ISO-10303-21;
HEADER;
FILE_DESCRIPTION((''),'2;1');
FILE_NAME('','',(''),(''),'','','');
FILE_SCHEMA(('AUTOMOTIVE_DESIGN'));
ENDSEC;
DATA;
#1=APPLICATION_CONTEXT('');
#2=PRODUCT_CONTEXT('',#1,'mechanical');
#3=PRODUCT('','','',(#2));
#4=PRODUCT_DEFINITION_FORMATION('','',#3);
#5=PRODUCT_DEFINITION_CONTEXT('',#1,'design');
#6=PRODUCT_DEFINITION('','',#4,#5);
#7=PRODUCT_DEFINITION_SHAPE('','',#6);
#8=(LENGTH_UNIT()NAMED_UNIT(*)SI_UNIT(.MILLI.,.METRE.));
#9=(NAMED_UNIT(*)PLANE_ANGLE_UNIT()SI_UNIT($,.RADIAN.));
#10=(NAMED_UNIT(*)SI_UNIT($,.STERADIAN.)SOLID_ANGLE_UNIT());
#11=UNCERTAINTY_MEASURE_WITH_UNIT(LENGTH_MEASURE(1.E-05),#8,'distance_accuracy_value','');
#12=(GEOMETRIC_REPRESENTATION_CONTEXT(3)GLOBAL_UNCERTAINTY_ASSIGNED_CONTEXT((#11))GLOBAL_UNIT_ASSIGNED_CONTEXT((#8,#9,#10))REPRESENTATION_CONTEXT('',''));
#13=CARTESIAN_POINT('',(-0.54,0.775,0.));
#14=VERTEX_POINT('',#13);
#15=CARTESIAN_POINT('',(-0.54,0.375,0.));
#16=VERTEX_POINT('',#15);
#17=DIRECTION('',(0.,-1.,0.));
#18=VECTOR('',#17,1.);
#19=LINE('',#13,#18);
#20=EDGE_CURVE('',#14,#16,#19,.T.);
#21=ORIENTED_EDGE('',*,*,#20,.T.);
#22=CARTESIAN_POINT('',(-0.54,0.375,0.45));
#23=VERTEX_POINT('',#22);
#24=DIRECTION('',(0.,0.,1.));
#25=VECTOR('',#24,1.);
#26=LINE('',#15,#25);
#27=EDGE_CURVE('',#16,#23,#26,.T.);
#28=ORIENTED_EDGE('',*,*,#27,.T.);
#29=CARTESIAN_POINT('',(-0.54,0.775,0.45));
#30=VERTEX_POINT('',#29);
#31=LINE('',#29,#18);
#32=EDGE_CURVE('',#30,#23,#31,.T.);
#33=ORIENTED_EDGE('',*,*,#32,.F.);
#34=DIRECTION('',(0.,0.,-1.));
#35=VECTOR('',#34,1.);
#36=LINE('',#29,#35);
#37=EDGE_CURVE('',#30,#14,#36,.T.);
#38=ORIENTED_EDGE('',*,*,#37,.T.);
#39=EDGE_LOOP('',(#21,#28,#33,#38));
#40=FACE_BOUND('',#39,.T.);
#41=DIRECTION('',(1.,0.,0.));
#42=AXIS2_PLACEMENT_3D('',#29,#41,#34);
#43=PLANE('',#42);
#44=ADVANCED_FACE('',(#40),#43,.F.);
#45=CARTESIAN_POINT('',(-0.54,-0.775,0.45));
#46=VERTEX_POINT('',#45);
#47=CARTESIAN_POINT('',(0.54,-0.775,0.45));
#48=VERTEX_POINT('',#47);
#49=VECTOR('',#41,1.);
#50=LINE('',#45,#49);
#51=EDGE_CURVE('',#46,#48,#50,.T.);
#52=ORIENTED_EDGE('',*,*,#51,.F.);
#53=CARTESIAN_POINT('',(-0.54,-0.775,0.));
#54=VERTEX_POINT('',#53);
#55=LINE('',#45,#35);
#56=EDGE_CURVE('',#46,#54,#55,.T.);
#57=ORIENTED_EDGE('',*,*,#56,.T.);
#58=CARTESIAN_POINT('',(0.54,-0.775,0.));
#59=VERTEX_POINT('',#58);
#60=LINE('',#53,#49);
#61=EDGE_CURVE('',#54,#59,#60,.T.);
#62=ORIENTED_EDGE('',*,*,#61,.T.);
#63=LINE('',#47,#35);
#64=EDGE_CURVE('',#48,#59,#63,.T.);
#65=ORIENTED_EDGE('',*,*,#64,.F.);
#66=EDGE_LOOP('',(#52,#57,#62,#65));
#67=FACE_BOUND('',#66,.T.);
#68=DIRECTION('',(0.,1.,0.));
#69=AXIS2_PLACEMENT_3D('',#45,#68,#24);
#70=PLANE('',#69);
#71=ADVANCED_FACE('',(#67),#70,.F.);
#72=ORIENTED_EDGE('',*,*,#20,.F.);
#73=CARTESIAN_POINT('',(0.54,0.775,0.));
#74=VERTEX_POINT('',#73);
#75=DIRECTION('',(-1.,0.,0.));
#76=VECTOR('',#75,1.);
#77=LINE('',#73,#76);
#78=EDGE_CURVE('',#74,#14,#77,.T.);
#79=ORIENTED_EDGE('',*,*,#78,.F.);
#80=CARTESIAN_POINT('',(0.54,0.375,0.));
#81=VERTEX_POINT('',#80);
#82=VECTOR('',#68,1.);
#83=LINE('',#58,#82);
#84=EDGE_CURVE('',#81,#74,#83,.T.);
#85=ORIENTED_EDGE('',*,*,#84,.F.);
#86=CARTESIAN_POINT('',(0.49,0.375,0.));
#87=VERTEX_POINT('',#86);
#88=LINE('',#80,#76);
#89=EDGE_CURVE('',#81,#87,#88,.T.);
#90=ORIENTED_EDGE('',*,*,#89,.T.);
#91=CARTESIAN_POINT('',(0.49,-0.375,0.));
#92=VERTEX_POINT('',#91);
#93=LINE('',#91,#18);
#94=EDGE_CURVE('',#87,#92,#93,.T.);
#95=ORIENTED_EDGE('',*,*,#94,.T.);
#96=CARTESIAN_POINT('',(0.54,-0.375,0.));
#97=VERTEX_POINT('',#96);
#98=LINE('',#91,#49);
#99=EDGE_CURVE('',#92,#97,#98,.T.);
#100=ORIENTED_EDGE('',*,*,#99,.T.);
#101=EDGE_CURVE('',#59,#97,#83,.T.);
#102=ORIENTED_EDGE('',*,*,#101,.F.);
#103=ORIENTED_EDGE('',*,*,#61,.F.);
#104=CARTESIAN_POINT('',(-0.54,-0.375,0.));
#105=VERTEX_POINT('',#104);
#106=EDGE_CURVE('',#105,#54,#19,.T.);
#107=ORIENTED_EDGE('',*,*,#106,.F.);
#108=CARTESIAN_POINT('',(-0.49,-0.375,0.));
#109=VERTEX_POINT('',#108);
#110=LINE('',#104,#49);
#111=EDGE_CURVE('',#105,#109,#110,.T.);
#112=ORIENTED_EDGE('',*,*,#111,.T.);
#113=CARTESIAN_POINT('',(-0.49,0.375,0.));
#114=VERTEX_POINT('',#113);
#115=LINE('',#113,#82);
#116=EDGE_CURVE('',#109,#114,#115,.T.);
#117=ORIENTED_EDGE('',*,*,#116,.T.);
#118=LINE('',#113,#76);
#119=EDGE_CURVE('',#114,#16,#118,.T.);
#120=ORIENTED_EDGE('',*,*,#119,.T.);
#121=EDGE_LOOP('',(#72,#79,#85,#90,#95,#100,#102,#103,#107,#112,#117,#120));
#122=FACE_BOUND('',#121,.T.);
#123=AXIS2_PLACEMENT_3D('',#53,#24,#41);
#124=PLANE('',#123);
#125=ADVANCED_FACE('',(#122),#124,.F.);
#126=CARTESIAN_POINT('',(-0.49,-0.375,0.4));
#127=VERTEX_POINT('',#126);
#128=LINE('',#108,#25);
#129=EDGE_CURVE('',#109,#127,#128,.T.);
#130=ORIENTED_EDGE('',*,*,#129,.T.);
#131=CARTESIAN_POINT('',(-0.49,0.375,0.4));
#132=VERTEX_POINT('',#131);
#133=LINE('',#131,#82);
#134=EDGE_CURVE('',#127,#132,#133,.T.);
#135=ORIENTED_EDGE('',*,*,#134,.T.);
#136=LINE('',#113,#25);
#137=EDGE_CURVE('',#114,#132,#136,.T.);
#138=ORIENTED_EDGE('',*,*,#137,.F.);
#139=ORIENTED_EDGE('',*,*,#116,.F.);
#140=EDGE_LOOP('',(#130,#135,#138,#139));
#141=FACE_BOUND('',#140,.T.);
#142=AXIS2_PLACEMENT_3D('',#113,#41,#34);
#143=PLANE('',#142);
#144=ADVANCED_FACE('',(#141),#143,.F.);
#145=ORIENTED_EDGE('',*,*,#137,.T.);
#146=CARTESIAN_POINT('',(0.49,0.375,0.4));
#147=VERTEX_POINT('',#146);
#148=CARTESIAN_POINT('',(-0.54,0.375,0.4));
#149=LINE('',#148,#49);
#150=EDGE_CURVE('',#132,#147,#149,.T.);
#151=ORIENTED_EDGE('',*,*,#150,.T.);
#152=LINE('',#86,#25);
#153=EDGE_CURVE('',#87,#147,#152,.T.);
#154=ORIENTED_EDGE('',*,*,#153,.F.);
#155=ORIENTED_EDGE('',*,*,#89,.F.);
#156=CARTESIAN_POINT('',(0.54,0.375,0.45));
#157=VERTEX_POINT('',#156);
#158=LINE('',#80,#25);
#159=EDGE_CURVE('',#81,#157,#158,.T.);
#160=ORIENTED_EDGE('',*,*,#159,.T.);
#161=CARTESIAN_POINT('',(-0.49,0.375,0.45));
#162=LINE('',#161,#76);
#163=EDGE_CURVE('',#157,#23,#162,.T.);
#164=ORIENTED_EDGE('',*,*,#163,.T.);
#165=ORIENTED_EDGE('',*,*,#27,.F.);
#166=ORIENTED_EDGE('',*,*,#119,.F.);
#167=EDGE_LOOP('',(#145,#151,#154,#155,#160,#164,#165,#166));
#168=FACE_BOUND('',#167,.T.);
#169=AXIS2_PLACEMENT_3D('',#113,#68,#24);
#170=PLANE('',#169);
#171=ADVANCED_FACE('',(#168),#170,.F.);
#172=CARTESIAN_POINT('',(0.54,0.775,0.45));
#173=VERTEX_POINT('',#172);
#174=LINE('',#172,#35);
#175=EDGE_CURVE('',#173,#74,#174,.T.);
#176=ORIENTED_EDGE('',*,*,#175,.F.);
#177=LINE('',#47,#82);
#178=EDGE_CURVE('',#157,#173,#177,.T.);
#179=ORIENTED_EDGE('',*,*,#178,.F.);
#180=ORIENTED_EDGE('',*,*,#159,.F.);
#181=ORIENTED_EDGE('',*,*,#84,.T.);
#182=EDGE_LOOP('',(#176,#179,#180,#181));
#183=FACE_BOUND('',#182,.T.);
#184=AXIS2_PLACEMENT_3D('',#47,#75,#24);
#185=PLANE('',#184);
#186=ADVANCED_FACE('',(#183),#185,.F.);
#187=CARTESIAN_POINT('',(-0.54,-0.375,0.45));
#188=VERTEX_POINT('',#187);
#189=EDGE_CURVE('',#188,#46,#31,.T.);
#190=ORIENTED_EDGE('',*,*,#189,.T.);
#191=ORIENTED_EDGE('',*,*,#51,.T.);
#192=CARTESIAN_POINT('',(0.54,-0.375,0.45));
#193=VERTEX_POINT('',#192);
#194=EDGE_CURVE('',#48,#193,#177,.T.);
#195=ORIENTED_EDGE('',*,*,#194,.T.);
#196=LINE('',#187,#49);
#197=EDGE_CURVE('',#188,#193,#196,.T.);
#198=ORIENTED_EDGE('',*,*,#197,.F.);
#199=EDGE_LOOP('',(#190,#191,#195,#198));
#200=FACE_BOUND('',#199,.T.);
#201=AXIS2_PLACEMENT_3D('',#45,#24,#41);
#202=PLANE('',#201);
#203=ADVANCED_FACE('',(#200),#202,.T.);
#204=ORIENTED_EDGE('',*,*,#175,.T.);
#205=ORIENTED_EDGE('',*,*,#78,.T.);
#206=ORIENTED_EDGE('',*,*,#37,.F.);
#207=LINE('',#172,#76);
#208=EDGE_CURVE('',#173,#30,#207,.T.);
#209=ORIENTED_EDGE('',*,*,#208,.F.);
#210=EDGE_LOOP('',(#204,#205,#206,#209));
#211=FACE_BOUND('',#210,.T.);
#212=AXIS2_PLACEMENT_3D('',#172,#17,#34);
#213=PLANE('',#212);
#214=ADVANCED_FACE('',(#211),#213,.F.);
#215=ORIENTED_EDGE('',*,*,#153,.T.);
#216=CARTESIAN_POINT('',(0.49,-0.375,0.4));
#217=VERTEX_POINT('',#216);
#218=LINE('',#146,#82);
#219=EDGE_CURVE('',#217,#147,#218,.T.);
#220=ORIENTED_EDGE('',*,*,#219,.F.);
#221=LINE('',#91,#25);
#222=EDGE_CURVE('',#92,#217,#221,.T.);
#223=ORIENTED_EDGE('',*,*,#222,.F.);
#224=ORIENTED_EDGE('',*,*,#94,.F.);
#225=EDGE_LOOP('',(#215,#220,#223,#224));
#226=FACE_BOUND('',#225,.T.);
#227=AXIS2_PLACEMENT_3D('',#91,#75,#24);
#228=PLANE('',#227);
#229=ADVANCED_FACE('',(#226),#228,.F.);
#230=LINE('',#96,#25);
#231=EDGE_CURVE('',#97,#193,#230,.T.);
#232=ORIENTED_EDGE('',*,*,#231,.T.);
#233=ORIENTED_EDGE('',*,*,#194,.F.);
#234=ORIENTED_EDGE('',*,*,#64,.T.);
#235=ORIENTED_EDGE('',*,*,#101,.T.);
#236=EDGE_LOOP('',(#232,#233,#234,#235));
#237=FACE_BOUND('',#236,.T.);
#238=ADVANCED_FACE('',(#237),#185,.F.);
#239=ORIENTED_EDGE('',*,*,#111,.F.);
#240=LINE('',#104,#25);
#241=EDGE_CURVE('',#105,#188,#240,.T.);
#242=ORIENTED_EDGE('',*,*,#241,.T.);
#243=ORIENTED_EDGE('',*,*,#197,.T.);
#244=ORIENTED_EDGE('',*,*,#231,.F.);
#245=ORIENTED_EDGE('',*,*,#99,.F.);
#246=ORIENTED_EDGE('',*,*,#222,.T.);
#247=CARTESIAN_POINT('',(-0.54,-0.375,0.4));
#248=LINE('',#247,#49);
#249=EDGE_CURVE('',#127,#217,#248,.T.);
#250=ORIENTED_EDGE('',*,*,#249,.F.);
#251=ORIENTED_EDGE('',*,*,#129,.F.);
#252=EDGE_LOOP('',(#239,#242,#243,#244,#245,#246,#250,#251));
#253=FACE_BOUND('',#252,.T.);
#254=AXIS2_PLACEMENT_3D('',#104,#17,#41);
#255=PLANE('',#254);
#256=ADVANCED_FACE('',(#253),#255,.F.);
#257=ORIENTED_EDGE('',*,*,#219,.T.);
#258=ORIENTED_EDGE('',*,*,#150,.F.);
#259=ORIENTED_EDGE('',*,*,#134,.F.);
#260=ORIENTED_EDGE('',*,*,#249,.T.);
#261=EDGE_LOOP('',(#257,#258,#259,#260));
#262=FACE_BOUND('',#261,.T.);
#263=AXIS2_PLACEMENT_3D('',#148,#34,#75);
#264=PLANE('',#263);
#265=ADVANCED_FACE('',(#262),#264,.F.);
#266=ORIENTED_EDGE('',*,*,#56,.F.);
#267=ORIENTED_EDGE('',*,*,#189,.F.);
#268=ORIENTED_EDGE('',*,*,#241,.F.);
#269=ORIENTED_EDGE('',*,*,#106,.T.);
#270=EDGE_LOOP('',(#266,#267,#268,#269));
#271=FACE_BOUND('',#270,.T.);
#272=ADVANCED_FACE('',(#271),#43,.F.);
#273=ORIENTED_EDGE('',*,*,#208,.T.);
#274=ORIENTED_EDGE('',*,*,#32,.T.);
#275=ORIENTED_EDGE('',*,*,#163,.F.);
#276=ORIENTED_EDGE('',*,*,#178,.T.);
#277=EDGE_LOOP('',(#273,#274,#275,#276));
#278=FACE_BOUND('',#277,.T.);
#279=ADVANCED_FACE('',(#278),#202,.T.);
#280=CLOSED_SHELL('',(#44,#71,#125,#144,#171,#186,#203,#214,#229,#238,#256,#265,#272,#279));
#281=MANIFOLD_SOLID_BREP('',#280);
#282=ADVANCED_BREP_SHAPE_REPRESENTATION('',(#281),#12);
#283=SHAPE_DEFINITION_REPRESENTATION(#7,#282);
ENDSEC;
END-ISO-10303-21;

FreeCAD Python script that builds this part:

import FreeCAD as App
import Part
import Sketcher
from FreeCAD import Vector

doc = App.newDocument("Part")
params = doc.addObject("Spreadsheet::Sheet", "Params")
for row, (alias, value) in enumerate([
    ("sketch1_width", "1.08 mm"),
    ("sketch1_height", "1.55 mm"),
    ("pad1_length", "0.45 mm"),
    ("sketch2_width", "0.05 mm"),
    ("sketch2_height", "0.75 mm"),
    ("sketch3_width", "0.75 mm"),
    ("sketch3_height", "0.05 mm"),
], start=1):
    params.set(f"A{row}", alias)
    params.set(f"B{row}", "=" + value)
    params.setAlias(f"B{row}", alias)

body = doc.addObject("PartDesign::Body", "Body")

# Sketch on XY plane
sketch1 = body.newObject("Sketcher::SketchObject", "Sketch")
sketch1.AttachmentSupport = (doc.getObject("XY_Plane"), [""])
sketch1.MapMode = "FlatFace"
sketch1.addGeometry([
    Part.LineSegment(Vector(-0.54, 0.775, 0), Vector(-0.54, -0.775, 0)),
    Part.LineSegment(Vector(-0.54, -0.775, 0), Vector(0.54, -0.775, 0)),
    Part.LineSegment(Vector(0.54, -0.775, 0), Vector(0.54, 0.775, 0)),
    Part.LineSegment(Vector(0.54, 0.775, 0), Vector(-0.54, 0.775, 0)),
], False)
sketch1.addConstraint([
    Sketcher.Constraint("Coincident", 0, 2, 1, 1),
    Sketcher.Constraint("Coincident", 1, 2, 2, 1),
    Sketcher.Constraint("Coincident", 2, 2, 3, 1),
    Sketcher.Constraint("Coincident", 3, 2, 0, 1),
    Sketcher.Constraint("Vertical", 0),
    Sketcher.Constraint("Horizontal", 1),
    Sketcher.Constraint("Vertical", 2),
    Sketcher.Constraint("Horizontal", 3),
    Sketcher.Constraint("Symmetric", 0, 2, 2, 2, -1, 1),
    Sketcher.Constraint("DistanceX", 1, 1, 1, 2, 1.08),
    Sketcher.Constraint("DistanceY", 0, 2, 0, 1, 1.55),
])
sketch1.setExpression("Constraints[9]", "Params.sketch1_width")
sketch1.setExpression("Constraints[10]", "Params.sketch1_height")
pad1 = body.newObject("PartDesign::Pad", "Pad")
pad1.Profile = sketch1
pad1.setExpression("Length", "Params.pad1_length")

# Sketch on XY plane
sketch2 = body.newObject("Sketcher::SketchObject", "Sketch001")
sketch2.AttachmentSupport = (doc.getObject("XY_Plane"), [""])
sketch2.MapMode = "FlatFace"
sketch2.AttachmentOffset = App.Placement(Vector(0, 0, 0.45), App.Rotation())
sketch2.addGeometry([
    Part.LineSegment(Vector(-0.54, 0.375, 0), Vector(-0.54, -0.375, 0)),  # 0
    Part.LineSegment(Vector(-0.54, -0.375, 0), Vector(-0.49, -0.375, 0)),  # 1
    Part.LineSegment(Vector(-0.49, -0.375, 0), Vector(-0.49, 0.375, 0)),  # 2
    Part.LineSegment(Vector(-0.49, 0.375, 0), Vector(-0.54, 0.375, 0)),  # 3
    Part.LineSegment(Vector(0.49, 0.375, 0), Vector(0.49, -0.375, 0)),  # 4
    Part.LineSegment(Vector(0.49, -0.375, 0), Vector(0.54, -0.375, 0)),  # 5
    Part.LineSegment(Vector(0.54, -0.375, 0), Vector(0.54, 0.375, 0)),  # 6
    Part.LineSegment(Vector(0.54, 0.375, 0), Vector(0.49, 0.375, 0)),  # 7
], False)
sketch2.addConstraint([
    Sketcher.Constraint("Coincident", 0, 2, 1, 1),
    Sketcher.Constraint("Coincident", 1, 2, 2, 1),
    Sketcher.Constraint("Coincident", 2, 2, 3, 1),
    Sketcher.Constraint("Coincident", 3, 2, 0, 1),
    Sketcher.Constraint("Coincident", 4, 2, 5, 1),
    Sketcher.Constraint("Coincident", 5, 2, 6, 1),
    Sketcher.Constraint("Coincident", 6, 2, 7, 1),
    Sketcher.Constraint("Coincident", 7, 2, 4, 1),
    Sketcher.Constraint("Vertical", 0),
    Sketcher.Constraint("Horizontal", 1),
    Sketcher.Constraint("Vertical", 2),
    Sketcher.Constraint("Horizontal", 3),
    Sketcher.Constraint("Vertical", 4),
    Sketcher.Constraint("Horizontal", 5),
    Sketcher.Constraint("Vertical", 6),
    Sketcher.Constraint("Horizontal", 7),
    Sketcher.Constraint("Symmetric", 2, 2, 4, 2, -1, 1),
    Sketcher.Constraint("Symmetric", 0, 2, 6, 2, -1, 1),
    Sketcher.Constraint("Horizontal", 1, 2, 4, 2),
    Sketcher.Constraint("DistanceX", 1, 1, 1, 2, 0.05),
    Sketcher.Constraint("DistanceY", 0, 2, 0, 1, 0.75),
    Sketcher.Constraint("DistanceX", 0, 2, -1, 1, 0.54),
])
sketch2.setExpression("Constraints[19]", "Params.sketch2_width")
sketch2.setExpression("Constraints[20]", "Params.sketch2_height")
pocket1 = body.newObject("PartDesign::Pocket", "Pocket")
pocket1.Profile = sketch2
pocket1.Type = "ThroughAll"

# Sketch on YZ plane
sketch3 = body.newObject("Sketcher::SketchObject", "Sketch002")
sketch3.AttachmentSupport = (doc.getObject("YZ_Plane"), [""])
sketch3.MapMode = "FlatFace"
sketch3.AttachmentOffset = App.Placement(Vector(0, 0, 0.49), App.Rotation())
sketch3.addGeometry([
    Part.LineSegment(Vector(0.375, 0.45, 0), Vector(-0.375, 0.45, 0)),
    Part.LineSegment(Vector(-0.375, 0.45, 0), Vector(-0.375, 0.4, 0)),
    Part.LineSegment(Vector(-0.375, 0.4, 0), Vector(0.375, 0.4, 0)),
    Part.LineSegment(Vector(0.375, 0.4, 0), Vector(0.375, 0.45, 0)),
], False)
sketch3.addConstraint([
    Sketcher.Constraint("Coincident", 0, 2, 1, 1),
    Sketcher.Constraint("Coincident", 1, 2, 2, 1),
    Sketcher.Constraint("Coincident", 2, 2, 3, 1),
    Sketcher.Constraint("Coincident", 3, 2, 0, 1),
    Sketcher.Constraint("Horizontal", 0),
    Sketcher.Constraint("Vertical", 1),
    Sketcher.Constraint("Horizontal", 2),
    Sketcher.Constraint("Vertical", 3),
    Sketcher.Constraint("DistanceX", 0, 2, 0, 1, 0.75),
    Sketcher.Constraint("DistanceY", 1, 2, 1, 1, 0.05),
    Sketcher.Constraint("DistanceY", -1, 1, 1, 2, 0.4),
    Sketcher.Constraint("DistanceX", 0, 2, -1, 1, 0.375),
])
sketch3.setExpression("Constraints[8]", "Params.sketch3_width")
sketch3.setExpression("Constraints[9]", "Params.sketch3_height")
pocket2 = body.newObject("PartDesign::Pocket", "Pocket001")
pocket2.Profile = sketch3
pocket2.Type = "ThroughAll"

doc.recompute()
